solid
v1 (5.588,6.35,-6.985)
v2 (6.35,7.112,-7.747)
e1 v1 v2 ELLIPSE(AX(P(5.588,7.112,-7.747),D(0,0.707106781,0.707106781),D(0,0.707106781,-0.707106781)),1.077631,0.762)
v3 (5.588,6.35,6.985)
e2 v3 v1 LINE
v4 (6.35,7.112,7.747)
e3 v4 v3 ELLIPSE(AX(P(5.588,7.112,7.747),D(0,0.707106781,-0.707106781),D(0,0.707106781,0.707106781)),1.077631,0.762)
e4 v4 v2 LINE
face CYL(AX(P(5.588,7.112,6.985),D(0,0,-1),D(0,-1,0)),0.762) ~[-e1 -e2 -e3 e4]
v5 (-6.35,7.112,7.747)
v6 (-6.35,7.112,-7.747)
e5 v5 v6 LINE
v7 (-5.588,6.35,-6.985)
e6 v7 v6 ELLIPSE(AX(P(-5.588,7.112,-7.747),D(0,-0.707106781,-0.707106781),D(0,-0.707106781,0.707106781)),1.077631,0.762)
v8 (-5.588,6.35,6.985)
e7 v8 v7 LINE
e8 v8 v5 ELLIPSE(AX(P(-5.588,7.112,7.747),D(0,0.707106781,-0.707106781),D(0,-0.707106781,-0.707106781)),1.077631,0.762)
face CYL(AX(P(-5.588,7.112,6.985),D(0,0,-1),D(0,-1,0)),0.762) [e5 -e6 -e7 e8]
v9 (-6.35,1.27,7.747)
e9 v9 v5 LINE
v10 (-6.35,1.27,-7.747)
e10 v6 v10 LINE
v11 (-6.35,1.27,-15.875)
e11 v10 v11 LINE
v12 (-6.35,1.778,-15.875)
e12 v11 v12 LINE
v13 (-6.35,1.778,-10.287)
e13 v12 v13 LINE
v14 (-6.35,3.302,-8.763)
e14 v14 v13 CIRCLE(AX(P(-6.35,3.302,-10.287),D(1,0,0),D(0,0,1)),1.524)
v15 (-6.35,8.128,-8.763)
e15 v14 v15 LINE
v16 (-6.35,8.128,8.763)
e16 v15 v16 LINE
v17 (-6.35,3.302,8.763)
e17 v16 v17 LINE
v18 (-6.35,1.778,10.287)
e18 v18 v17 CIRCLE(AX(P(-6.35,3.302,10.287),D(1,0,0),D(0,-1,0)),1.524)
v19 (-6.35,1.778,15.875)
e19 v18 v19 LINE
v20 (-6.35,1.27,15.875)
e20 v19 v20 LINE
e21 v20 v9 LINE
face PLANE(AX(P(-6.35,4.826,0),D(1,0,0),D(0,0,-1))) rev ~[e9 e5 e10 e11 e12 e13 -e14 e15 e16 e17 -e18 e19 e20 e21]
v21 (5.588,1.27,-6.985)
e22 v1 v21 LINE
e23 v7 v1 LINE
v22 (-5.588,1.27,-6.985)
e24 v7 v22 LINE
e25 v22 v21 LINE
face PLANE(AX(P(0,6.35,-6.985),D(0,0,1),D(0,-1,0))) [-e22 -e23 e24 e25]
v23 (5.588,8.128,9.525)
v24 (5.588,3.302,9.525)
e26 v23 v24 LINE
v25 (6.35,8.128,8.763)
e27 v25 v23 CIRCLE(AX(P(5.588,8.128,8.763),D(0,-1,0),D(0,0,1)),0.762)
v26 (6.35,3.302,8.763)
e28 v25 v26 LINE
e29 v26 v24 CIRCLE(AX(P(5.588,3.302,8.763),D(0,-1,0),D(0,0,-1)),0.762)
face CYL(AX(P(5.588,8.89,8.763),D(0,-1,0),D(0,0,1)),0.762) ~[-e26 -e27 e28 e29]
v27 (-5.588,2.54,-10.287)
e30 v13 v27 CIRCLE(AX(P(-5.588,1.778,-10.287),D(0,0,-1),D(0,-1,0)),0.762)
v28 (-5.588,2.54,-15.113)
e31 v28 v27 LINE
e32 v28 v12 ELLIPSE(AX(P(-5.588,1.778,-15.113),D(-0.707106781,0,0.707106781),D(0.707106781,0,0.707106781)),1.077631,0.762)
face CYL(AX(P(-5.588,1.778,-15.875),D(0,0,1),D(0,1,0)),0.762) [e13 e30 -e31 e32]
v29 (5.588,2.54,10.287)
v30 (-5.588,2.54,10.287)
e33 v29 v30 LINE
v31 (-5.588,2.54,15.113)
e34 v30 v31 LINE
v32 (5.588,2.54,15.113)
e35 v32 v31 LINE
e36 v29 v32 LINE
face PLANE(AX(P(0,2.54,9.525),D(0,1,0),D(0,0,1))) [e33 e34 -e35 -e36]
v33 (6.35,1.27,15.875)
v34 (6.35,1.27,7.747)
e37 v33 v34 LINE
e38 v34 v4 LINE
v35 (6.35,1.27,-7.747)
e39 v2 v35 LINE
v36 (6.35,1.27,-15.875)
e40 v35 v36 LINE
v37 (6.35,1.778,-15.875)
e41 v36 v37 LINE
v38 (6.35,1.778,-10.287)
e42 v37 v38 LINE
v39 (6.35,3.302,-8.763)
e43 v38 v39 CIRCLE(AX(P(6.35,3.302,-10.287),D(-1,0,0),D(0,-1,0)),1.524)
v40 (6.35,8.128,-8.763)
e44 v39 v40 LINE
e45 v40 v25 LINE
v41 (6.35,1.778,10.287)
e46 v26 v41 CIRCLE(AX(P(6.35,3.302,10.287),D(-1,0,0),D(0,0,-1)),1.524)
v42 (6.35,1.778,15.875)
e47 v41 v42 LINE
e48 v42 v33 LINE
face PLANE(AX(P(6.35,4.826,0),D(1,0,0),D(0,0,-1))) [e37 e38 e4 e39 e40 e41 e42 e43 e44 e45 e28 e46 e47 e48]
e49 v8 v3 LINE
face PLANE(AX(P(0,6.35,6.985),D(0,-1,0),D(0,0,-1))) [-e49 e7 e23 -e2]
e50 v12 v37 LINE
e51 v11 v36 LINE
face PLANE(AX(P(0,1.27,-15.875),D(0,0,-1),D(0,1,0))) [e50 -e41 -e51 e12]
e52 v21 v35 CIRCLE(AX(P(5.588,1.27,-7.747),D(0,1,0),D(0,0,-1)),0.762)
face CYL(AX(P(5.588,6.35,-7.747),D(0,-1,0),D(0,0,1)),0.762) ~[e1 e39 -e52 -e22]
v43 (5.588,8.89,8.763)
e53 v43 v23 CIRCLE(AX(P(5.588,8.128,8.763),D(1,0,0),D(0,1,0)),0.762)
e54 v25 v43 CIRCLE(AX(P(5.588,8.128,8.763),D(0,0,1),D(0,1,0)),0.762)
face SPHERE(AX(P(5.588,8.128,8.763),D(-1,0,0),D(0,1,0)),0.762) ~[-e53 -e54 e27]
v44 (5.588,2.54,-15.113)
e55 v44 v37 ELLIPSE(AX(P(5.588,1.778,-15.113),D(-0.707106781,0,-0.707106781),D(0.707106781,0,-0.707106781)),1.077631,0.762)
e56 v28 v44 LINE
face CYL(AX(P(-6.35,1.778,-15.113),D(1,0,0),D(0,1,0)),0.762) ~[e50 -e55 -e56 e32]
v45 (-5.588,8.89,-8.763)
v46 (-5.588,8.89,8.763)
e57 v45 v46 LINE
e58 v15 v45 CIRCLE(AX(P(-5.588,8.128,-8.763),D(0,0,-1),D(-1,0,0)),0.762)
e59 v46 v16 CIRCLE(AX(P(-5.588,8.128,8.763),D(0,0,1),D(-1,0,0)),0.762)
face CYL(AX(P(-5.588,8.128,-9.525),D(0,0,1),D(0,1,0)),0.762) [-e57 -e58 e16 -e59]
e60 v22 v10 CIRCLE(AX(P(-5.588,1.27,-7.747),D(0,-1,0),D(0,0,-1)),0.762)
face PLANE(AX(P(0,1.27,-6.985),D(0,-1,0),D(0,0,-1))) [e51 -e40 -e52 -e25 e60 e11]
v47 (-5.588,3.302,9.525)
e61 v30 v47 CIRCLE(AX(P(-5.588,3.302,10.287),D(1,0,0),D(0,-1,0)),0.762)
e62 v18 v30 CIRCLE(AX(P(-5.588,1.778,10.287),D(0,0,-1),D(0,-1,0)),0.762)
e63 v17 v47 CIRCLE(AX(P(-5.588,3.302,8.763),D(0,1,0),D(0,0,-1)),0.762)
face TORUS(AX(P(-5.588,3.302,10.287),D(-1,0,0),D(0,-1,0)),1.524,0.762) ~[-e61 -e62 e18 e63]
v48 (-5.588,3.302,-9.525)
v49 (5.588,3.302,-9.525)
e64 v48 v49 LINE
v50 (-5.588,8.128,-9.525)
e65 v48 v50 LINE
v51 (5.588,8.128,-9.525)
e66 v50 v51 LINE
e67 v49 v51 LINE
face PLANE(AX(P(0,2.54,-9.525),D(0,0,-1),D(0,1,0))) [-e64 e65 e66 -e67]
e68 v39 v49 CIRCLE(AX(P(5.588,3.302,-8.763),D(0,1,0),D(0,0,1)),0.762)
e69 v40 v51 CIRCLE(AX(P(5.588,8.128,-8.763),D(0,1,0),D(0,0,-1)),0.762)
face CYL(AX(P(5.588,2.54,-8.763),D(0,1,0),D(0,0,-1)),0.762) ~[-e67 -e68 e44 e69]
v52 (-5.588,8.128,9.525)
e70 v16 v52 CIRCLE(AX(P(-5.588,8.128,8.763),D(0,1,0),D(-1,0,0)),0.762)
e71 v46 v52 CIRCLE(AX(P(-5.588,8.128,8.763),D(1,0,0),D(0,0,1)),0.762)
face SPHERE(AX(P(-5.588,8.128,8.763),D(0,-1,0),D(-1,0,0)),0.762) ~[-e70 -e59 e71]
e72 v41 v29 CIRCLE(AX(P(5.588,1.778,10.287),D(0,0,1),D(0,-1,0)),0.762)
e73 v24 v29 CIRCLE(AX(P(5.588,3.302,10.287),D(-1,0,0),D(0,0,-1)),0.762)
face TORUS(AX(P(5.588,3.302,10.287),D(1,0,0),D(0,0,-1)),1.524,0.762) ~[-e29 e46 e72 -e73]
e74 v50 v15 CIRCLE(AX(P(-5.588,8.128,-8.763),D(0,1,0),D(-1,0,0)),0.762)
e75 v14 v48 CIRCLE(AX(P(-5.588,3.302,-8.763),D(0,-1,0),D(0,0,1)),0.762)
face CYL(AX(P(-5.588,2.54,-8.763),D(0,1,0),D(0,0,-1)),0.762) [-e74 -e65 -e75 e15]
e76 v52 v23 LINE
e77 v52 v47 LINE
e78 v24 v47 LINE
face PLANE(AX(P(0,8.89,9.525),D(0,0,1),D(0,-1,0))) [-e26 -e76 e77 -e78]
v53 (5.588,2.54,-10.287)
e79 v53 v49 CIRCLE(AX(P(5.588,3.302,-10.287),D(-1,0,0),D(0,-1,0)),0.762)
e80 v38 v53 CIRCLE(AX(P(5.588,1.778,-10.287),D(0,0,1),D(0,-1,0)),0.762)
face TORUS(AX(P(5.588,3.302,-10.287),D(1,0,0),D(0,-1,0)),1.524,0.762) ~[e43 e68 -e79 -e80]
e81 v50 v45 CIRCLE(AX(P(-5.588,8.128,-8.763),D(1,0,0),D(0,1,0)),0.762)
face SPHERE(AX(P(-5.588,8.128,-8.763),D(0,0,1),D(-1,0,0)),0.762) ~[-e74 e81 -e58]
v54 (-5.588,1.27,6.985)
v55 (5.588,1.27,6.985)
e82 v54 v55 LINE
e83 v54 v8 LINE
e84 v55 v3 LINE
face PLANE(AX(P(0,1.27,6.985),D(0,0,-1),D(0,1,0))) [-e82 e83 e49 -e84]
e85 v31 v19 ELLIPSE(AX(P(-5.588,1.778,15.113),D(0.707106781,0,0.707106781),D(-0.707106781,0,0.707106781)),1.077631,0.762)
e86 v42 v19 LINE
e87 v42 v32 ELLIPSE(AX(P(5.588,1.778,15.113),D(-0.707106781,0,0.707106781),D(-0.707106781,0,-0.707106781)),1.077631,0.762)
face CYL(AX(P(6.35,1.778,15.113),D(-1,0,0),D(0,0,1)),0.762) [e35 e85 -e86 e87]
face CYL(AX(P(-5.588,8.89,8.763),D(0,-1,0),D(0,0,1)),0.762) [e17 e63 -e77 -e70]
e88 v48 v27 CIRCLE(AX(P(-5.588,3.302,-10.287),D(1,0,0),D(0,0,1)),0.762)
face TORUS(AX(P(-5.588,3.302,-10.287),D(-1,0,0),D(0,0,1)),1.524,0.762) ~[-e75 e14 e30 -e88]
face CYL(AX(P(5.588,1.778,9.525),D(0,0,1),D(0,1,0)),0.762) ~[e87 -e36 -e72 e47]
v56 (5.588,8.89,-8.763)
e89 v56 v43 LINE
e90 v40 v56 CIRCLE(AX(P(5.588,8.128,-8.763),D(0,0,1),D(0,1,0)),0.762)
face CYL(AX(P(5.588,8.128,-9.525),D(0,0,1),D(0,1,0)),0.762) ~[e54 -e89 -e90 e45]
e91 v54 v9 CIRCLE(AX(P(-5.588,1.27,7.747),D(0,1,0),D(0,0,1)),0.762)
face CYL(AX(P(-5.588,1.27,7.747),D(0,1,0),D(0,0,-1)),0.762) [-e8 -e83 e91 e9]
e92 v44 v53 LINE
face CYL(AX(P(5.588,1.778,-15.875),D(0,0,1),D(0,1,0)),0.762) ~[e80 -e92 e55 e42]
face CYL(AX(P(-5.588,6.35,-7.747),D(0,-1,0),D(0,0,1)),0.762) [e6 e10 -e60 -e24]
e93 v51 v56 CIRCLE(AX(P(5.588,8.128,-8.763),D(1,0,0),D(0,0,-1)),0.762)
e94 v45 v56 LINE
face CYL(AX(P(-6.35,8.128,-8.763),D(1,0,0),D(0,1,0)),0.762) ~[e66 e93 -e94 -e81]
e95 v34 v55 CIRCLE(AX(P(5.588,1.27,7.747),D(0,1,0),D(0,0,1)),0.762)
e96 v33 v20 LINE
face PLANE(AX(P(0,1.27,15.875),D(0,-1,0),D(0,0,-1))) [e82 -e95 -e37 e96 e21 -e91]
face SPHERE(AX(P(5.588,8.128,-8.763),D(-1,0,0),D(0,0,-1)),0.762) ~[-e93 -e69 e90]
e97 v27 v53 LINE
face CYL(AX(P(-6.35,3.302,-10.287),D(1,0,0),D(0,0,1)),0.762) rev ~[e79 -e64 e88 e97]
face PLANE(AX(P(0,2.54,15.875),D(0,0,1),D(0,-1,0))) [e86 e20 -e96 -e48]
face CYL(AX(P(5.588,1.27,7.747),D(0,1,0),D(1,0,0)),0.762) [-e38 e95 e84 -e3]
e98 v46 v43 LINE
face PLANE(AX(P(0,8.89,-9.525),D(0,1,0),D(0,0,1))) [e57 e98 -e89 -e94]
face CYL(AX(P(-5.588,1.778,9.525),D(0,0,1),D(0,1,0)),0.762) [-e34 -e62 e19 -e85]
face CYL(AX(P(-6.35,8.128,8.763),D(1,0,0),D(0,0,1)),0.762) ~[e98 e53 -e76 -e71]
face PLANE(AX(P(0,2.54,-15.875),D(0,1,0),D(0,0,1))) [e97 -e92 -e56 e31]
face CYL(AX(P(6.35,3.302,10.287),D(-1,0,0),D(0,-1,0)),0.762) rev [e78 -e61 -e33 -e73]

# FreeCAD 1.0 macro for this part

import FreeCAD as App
import Part
import Sketcher
from FreeCAD import Vector
Q = App.Units.Quantity


def edges_at(feature, points):
    """Names of the edges that pass closest to the given points."""
    edges = feature.Shape.Edges
    near = lambda p: min(range(len(edges)), key=lambda i: edges[i].distToShape(Part.Vertex(*p))[0])
    return sorted({f"Edge{near(p) + 1}" for p in points})

doc = App.newDocument("Part")
body = doc.addObject("PartDesign::Body", "Body")

# Sketch on YZ plane
sketch1 = body.newObject("Sketcher::SketchObject", "Sketch")
sketch1.AttachmentSupport = (doc.getObject("YZ_Plane"), [""])
sketch1.MapMode = "FlatFace"
sketch1.addGeometry([
    Part.LineSegment(Vector(1.3, 15.9, 0), Vector(1.3, 7, 0)),  # 0
    Part.LineSegment(Vector(1.3, 7, 0), Vector(6.3, 7, 0)),  # 1
    Part.LineSegment(Vector(6.3, 7, 0), Vector(6.3, -7, 0)),  # 2
    Part.LineSegment(Vector(6.3, -7, 0), Vector(1.3, -7, 0)),  # 3
    Part.LineSegment(Vector(1.3, -7, 0), Vector(1.3, -15.9, 0)),  # 4
    Part.LineSegment(Vector(1.3, -15.9, 0), Vector(2.5, -15.9, 0)),  # 5
    Part.LineSegment(Vector(2.5, -15.9, 0), Vector(2.5, -9.5, 0)),  # 6
    Part.LineSegment(Vector(2.5, -9.5, 0), Vector(8.9, -9.5, 0)),  # 7
    Part.LineSegment(Vector(8.9, -9.5, 0), Vector(8.9, 9.5, 0)),  # 8
    Part.LineSegment(Vector(8.9, 9.5, 0), Vector(2.5, 9.5, 0)),  # 9
    Part.LineSegment(Vector(2.5, 9.5, 0), Vector(2.5, 15.9, 0)),  # 10
    Part.LineSegment(Vector(2.5, 15.9, 0), Vector(1.3, 15.9, 0)),  # 11
], False)
sketch1.addConstraint([
    Sketcher.Constraint("Coincident", 0, 2, 1, 1),
    Sketcher.Constraint("Coincident", 1, 2, 2, 1),
    Sketcher.Constraint("Coincident", 2, 2, 3, 1),
    Sketcher.Constraint("Coincident", 3, 2, 4, 1),
    Sketcher.Constraint("Coincident", 4, 2, 5, 1),
    Sketcher.Constraint("Coincident", 5, 2, 6, 1),
    Sketcher.Constraint("Coincident", 6, 2, 7, 1),
    Sketcher.Constraint("Coincident", 7, 2, 8, 1),
    Sketcher.Constraint("Coincident", 8, 2, 9, 1),
    Sketcher.Constraint("Coincident", 9, 2, 10, 1),
    Sketcher.Constraint("Coincident", 10, 2, 11, 1),
    Sketcher.Constraint("Coincident", 11, 2, 0, 1),
    Sketcher.Constraint("Vertical", 0),
    Sketcher.Constraint("Horizontal", 1),
    Sketcher.Constraint("Vertical", 2),
    Sketcher.Constraint("Horizontal", 3),
    Sketcher.Constraint("Vertical", 4),
    Sketcher.Constraint("Horizontal", 5),
    Sketcher.Constraint("Vertical", 6),
    Sketcher.Constraint("Horizontal", 7),
    Sketcher.Constraint("Vertical", 8),
    Sketcher.Constraint("Horizontal", 9),
    Sketcher.Constraint("Vertical", 10),
    Sketcher.Constraint("Horizontal", 11),
    Sketcher.Constraint("Symmetric", 0, 2, 3, 2, -1),
    Sketcher.Constraint("Symmetric", 6, 2, 9, 2, -1),
    Sketcher.Constraint("Equal", 0, 4),
    Sketcher.Constraint("Equal", 9, 6),
    Sketcher.Constraint("DistanceX", 1, 1, 1, 2, Q("0.2 in")),
    Sketcher.Constraint("DistanceX", 5, 1, 5, 2, Q("0.05 in")),
    Sketcher.Constraint("DistanceX", 7, 1, 7, 2, Q("0.25 in")),
    Sketcher.Constraint("DistanceY", 0, 2, 0, 1, Q("0.35 in")),
    Sketcher.Constraint("DistanceY", 2, 2, 2, 1, Q("0.55 in")),
    Sketcher.Constraint("DistanceX", -1, 1, 5, 2, Q("0.1 in")),
])
pad1 = body.newObject("PartDesign::Pad", "Pad")
pad1.Profile = sketch1
pad1.Length = Q("0.5 in")
pad1.Midplane = True
doc.recompute()

fillet = body.newObject("PartDesign::Fillet", "Fillet")
fillet.Base = (pad1, edges_at(pad1, [
    (-6.35, 2.54, 12.7),
    (-6.35, 5.715, 9.525),
    (6.35, 3.81, 6.985),
    (-6.35, 8.89, 0),
    (-6.35, 5.715, -9.525),
    (-6.35, 2.54, -12.7),
    (-6.35, 3.81, -6.985),
    (-6.35, 6.35, 0),
    (-6.35, 3.81, 6.985),
    (6.35, 6.35, 0),
    (0, 2.54, 15.875),
    (0, 2.54, 9.525),
    (0, 8.89, 9.525),
    (6.35, 3.81, -6.985),
    (0, 8.89, -9.525),
    (0, 2.54, -9.525),
    (0, 2.54, -15.875),
    (6.35, 2.54, -12.7),
    (6.35, 5.715, -9.525),
    (6.35, 8.89, 0),
    (6.35, 5.715, 9.525),
    (6.35, 2.54, 12.7),
]))
fillet.Radius = Q("0.03 in")

doc.recompute()
